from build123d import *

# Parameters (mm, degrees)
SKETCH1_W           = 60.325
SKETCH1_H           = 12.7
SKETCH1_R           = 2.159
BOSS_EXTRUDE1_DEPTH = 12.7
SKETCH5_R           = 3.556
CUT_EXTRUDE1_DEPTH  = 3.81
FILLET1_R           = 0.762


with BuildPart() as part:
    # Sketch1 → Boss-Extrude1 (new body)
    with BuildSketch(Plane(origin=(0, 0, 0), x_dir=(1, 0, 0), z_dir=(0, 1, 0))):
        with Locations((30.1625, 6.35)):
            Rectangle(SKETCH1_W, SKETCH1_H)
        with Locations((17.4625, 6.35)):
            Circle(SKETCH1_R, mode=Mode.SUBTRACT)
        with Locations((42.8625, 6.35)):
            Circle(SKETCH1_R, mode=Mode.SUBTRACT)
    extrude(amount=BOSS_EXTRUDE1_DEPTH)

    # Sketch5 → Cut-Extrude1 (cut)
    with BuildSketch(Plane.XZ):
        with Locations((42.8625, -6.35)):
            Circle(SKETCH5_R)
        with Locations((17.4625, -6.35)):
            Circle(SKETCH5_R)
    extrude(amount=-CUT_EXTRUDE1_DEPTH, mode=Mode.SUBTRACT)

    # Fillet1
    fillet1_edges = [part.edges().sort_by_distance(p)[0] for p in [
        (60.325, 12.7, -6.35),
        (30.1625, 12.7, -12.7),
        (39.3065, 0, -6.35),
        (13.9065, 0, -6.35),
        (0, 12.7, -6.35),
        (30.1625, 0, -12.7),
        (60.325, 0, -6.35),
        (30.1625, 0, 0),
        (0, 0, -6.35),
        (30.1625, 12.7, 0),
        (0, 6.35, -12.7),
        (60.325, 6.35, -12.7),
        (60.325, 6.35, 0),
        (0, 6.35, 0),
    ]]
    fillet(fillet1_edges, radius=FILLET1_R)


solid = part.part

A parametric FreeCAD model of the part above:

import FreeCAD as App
import Part
import Sketcher

V = App.Vector
Q = App.Units.Quantity


def edges_at(feature, points):
    """Names of the edges that pass closest to the given points."""
    edges = feature.Shape.Edges
    near = lambda p: min(range(len(edges)), key=lambda i: edges[i].distToShape(Part.Vertex(*p))[0])
    return sorted({f"Edge{near(p) + 1}" for p in points})


def add_polygon(sketch, points):
    """Adds a closed chain of lines whose ends are joined by coincident constraints."""
    first, n = sketch.GeometryCount, len(points)
    for a, b in zip(points, points[1:] + points[:1]):
        sketch.addGeometry(Part.LineSegment(App.Vector(*a, 0), App.Vector(*b, 0)), False)
    for i in range(n):
        sketch.addConstraint(Sketcher.Constraint("Coincident", first + i, 2, first + (i + 1) % n, 1))

doc = App.newDocument("Part")
body = doc.addObject("PartDesign::Body", "Body")

sketch1 = body.newObject("Sketcher::SketchObject", "Sketch")
sketch1.AttachmentSupport = (doc.getObject("XZ_Plane"), [""])
sketch1.MapMode = "FlatFace"
add_polygon(sketch1, [(0, -12.7), (0, 0), (60.3, 0), (60.3, -12.7)])
sketch1.addGeometry(Part.Circle(V(17.5, -6.3, 0), V(0, 0, 1), 2.2), False)
sketch1.addGeometry(Part.Circle(V(42.9, -6.3, 0), V(0, 0, 1), 2.2), False)
sketch1.addConstraint(Sketcher.Constraint("Vertical", 0))
sketch1.addConstraint(Sketcher.Constraint("Horizontal", 1))
sketch1.addConstraint(Sketcher.Constraint("Vertical", 2))
sketch1.addConstraint(Sketcher.Constraint("Horizontal", 3))
sketch1.addConstraint(Sketcher.Constraint("Coincident", 0, 2, -1, 1))
sketch1.addConstraint(Sketcher.Constraint("Equal", 4, 5))
sketch1.addConstraint(Sketcher.Constraint("Horizontal", 4, 3, 5, 3))
sketch1.addConstraint(Sketcher.Constraint("Diameter", 4, Q("0.17 in")))
sketch1.addConstraint(Sketcher.Constraint("DistanceY", 0, 1, 0, 2, Q("0.5 in")))
sketch1.addConstraint(Sketcher.Constraint("DistanceX", 4, 3, 5, 3, Q("1 in")))
sketch1.addConstraint(Sketcher.Constraint("DistanceX", 1, 1, 1, 2, Q("2.375 in")))
sketch1.addConstraint(Sketcher.Constraint("DistanceY", 4, 3, -1, 1, Q("0.25 in")))
sketch1.addConstraint(Sketcher.Constraint("DistanceX", -1, 1, 4, 3, Q("0.6875 in")))
pad1 = body.newObject("PartDesign::Pad", "Pad")
pad1.Profile = sketch1
pad1.Length = Q("0.5 in")
pad1.Reversed = True

sketch2 = body.newObject("Sketcher::SketchObject", "Sketch001")
sketch2.AttachmentSupport = (doc.getObject("XZ_Plane"), [""])
sketch2.MapMode = "FlatFace"
sketch2.addGeometry(Part.Circle(V(42.9, -6.3, 0), V(0, 0, 1), 3.6), False)
sketch2.addGeometry(Part.Circle(V(17.5, -6.3, 0), V(0, 0, 1), 3.6), False)
sketch2.addConstraint(Sketcher.Constraint("Equal", 0, 1))
sketch2.addConstraint(Sketcher.Constraint("Horizontal", 0, 3, 1, 3))
sketch2.addConstraint(Sketcher.Constraint("Diameter", 0, Q("0.28 in")))
sketch2.addConstraint(Sketcher.Constraint("DistanceX", 1, 3, 0, 3, Q("1 in")))
sketch2.addConstraint(Sketcher.Constraint("DistanceY", 0, 3, -1, 1, Q("0.25 in")))
sketch2.addConstraint(Sketcher.Constraint("DistanceX", -1, 1, 0, 3, Q("1.6875 in")))
pocket1 = body.newObject("PartDesign::Pocket", "Pocket")
pocket1.Profile = sketch2
pocket1.Length = Q("0.15 in")
doc.recompute()

fillet = body.newObject("PartDesign::Fillet", "Fillet")
fillet.Base = (pocket1, edges_at(pocket1, [
    (60.325, 12.7, -6.35),
    (30.163, 12.7, -12.7),
    (39.306, 0, -6.35),
    (13.906, 0, -6.35),
    (0, 12.7, -6.35),
    (30.163, 0, -12.7),
    (60.325, 0, -6.35),
    (30.163, 0, 0),
    (0, 0, -6.35),
    (30.163, 12.7, 0),
    (0, 6.35, -12.7),
    (60.325, 6.35, -12.7),
    (60.325, 6.35, 0),
    (0, 6.35, 0),
]))
fillet.Radius = Q("0.03 in")

doc.recompute()
